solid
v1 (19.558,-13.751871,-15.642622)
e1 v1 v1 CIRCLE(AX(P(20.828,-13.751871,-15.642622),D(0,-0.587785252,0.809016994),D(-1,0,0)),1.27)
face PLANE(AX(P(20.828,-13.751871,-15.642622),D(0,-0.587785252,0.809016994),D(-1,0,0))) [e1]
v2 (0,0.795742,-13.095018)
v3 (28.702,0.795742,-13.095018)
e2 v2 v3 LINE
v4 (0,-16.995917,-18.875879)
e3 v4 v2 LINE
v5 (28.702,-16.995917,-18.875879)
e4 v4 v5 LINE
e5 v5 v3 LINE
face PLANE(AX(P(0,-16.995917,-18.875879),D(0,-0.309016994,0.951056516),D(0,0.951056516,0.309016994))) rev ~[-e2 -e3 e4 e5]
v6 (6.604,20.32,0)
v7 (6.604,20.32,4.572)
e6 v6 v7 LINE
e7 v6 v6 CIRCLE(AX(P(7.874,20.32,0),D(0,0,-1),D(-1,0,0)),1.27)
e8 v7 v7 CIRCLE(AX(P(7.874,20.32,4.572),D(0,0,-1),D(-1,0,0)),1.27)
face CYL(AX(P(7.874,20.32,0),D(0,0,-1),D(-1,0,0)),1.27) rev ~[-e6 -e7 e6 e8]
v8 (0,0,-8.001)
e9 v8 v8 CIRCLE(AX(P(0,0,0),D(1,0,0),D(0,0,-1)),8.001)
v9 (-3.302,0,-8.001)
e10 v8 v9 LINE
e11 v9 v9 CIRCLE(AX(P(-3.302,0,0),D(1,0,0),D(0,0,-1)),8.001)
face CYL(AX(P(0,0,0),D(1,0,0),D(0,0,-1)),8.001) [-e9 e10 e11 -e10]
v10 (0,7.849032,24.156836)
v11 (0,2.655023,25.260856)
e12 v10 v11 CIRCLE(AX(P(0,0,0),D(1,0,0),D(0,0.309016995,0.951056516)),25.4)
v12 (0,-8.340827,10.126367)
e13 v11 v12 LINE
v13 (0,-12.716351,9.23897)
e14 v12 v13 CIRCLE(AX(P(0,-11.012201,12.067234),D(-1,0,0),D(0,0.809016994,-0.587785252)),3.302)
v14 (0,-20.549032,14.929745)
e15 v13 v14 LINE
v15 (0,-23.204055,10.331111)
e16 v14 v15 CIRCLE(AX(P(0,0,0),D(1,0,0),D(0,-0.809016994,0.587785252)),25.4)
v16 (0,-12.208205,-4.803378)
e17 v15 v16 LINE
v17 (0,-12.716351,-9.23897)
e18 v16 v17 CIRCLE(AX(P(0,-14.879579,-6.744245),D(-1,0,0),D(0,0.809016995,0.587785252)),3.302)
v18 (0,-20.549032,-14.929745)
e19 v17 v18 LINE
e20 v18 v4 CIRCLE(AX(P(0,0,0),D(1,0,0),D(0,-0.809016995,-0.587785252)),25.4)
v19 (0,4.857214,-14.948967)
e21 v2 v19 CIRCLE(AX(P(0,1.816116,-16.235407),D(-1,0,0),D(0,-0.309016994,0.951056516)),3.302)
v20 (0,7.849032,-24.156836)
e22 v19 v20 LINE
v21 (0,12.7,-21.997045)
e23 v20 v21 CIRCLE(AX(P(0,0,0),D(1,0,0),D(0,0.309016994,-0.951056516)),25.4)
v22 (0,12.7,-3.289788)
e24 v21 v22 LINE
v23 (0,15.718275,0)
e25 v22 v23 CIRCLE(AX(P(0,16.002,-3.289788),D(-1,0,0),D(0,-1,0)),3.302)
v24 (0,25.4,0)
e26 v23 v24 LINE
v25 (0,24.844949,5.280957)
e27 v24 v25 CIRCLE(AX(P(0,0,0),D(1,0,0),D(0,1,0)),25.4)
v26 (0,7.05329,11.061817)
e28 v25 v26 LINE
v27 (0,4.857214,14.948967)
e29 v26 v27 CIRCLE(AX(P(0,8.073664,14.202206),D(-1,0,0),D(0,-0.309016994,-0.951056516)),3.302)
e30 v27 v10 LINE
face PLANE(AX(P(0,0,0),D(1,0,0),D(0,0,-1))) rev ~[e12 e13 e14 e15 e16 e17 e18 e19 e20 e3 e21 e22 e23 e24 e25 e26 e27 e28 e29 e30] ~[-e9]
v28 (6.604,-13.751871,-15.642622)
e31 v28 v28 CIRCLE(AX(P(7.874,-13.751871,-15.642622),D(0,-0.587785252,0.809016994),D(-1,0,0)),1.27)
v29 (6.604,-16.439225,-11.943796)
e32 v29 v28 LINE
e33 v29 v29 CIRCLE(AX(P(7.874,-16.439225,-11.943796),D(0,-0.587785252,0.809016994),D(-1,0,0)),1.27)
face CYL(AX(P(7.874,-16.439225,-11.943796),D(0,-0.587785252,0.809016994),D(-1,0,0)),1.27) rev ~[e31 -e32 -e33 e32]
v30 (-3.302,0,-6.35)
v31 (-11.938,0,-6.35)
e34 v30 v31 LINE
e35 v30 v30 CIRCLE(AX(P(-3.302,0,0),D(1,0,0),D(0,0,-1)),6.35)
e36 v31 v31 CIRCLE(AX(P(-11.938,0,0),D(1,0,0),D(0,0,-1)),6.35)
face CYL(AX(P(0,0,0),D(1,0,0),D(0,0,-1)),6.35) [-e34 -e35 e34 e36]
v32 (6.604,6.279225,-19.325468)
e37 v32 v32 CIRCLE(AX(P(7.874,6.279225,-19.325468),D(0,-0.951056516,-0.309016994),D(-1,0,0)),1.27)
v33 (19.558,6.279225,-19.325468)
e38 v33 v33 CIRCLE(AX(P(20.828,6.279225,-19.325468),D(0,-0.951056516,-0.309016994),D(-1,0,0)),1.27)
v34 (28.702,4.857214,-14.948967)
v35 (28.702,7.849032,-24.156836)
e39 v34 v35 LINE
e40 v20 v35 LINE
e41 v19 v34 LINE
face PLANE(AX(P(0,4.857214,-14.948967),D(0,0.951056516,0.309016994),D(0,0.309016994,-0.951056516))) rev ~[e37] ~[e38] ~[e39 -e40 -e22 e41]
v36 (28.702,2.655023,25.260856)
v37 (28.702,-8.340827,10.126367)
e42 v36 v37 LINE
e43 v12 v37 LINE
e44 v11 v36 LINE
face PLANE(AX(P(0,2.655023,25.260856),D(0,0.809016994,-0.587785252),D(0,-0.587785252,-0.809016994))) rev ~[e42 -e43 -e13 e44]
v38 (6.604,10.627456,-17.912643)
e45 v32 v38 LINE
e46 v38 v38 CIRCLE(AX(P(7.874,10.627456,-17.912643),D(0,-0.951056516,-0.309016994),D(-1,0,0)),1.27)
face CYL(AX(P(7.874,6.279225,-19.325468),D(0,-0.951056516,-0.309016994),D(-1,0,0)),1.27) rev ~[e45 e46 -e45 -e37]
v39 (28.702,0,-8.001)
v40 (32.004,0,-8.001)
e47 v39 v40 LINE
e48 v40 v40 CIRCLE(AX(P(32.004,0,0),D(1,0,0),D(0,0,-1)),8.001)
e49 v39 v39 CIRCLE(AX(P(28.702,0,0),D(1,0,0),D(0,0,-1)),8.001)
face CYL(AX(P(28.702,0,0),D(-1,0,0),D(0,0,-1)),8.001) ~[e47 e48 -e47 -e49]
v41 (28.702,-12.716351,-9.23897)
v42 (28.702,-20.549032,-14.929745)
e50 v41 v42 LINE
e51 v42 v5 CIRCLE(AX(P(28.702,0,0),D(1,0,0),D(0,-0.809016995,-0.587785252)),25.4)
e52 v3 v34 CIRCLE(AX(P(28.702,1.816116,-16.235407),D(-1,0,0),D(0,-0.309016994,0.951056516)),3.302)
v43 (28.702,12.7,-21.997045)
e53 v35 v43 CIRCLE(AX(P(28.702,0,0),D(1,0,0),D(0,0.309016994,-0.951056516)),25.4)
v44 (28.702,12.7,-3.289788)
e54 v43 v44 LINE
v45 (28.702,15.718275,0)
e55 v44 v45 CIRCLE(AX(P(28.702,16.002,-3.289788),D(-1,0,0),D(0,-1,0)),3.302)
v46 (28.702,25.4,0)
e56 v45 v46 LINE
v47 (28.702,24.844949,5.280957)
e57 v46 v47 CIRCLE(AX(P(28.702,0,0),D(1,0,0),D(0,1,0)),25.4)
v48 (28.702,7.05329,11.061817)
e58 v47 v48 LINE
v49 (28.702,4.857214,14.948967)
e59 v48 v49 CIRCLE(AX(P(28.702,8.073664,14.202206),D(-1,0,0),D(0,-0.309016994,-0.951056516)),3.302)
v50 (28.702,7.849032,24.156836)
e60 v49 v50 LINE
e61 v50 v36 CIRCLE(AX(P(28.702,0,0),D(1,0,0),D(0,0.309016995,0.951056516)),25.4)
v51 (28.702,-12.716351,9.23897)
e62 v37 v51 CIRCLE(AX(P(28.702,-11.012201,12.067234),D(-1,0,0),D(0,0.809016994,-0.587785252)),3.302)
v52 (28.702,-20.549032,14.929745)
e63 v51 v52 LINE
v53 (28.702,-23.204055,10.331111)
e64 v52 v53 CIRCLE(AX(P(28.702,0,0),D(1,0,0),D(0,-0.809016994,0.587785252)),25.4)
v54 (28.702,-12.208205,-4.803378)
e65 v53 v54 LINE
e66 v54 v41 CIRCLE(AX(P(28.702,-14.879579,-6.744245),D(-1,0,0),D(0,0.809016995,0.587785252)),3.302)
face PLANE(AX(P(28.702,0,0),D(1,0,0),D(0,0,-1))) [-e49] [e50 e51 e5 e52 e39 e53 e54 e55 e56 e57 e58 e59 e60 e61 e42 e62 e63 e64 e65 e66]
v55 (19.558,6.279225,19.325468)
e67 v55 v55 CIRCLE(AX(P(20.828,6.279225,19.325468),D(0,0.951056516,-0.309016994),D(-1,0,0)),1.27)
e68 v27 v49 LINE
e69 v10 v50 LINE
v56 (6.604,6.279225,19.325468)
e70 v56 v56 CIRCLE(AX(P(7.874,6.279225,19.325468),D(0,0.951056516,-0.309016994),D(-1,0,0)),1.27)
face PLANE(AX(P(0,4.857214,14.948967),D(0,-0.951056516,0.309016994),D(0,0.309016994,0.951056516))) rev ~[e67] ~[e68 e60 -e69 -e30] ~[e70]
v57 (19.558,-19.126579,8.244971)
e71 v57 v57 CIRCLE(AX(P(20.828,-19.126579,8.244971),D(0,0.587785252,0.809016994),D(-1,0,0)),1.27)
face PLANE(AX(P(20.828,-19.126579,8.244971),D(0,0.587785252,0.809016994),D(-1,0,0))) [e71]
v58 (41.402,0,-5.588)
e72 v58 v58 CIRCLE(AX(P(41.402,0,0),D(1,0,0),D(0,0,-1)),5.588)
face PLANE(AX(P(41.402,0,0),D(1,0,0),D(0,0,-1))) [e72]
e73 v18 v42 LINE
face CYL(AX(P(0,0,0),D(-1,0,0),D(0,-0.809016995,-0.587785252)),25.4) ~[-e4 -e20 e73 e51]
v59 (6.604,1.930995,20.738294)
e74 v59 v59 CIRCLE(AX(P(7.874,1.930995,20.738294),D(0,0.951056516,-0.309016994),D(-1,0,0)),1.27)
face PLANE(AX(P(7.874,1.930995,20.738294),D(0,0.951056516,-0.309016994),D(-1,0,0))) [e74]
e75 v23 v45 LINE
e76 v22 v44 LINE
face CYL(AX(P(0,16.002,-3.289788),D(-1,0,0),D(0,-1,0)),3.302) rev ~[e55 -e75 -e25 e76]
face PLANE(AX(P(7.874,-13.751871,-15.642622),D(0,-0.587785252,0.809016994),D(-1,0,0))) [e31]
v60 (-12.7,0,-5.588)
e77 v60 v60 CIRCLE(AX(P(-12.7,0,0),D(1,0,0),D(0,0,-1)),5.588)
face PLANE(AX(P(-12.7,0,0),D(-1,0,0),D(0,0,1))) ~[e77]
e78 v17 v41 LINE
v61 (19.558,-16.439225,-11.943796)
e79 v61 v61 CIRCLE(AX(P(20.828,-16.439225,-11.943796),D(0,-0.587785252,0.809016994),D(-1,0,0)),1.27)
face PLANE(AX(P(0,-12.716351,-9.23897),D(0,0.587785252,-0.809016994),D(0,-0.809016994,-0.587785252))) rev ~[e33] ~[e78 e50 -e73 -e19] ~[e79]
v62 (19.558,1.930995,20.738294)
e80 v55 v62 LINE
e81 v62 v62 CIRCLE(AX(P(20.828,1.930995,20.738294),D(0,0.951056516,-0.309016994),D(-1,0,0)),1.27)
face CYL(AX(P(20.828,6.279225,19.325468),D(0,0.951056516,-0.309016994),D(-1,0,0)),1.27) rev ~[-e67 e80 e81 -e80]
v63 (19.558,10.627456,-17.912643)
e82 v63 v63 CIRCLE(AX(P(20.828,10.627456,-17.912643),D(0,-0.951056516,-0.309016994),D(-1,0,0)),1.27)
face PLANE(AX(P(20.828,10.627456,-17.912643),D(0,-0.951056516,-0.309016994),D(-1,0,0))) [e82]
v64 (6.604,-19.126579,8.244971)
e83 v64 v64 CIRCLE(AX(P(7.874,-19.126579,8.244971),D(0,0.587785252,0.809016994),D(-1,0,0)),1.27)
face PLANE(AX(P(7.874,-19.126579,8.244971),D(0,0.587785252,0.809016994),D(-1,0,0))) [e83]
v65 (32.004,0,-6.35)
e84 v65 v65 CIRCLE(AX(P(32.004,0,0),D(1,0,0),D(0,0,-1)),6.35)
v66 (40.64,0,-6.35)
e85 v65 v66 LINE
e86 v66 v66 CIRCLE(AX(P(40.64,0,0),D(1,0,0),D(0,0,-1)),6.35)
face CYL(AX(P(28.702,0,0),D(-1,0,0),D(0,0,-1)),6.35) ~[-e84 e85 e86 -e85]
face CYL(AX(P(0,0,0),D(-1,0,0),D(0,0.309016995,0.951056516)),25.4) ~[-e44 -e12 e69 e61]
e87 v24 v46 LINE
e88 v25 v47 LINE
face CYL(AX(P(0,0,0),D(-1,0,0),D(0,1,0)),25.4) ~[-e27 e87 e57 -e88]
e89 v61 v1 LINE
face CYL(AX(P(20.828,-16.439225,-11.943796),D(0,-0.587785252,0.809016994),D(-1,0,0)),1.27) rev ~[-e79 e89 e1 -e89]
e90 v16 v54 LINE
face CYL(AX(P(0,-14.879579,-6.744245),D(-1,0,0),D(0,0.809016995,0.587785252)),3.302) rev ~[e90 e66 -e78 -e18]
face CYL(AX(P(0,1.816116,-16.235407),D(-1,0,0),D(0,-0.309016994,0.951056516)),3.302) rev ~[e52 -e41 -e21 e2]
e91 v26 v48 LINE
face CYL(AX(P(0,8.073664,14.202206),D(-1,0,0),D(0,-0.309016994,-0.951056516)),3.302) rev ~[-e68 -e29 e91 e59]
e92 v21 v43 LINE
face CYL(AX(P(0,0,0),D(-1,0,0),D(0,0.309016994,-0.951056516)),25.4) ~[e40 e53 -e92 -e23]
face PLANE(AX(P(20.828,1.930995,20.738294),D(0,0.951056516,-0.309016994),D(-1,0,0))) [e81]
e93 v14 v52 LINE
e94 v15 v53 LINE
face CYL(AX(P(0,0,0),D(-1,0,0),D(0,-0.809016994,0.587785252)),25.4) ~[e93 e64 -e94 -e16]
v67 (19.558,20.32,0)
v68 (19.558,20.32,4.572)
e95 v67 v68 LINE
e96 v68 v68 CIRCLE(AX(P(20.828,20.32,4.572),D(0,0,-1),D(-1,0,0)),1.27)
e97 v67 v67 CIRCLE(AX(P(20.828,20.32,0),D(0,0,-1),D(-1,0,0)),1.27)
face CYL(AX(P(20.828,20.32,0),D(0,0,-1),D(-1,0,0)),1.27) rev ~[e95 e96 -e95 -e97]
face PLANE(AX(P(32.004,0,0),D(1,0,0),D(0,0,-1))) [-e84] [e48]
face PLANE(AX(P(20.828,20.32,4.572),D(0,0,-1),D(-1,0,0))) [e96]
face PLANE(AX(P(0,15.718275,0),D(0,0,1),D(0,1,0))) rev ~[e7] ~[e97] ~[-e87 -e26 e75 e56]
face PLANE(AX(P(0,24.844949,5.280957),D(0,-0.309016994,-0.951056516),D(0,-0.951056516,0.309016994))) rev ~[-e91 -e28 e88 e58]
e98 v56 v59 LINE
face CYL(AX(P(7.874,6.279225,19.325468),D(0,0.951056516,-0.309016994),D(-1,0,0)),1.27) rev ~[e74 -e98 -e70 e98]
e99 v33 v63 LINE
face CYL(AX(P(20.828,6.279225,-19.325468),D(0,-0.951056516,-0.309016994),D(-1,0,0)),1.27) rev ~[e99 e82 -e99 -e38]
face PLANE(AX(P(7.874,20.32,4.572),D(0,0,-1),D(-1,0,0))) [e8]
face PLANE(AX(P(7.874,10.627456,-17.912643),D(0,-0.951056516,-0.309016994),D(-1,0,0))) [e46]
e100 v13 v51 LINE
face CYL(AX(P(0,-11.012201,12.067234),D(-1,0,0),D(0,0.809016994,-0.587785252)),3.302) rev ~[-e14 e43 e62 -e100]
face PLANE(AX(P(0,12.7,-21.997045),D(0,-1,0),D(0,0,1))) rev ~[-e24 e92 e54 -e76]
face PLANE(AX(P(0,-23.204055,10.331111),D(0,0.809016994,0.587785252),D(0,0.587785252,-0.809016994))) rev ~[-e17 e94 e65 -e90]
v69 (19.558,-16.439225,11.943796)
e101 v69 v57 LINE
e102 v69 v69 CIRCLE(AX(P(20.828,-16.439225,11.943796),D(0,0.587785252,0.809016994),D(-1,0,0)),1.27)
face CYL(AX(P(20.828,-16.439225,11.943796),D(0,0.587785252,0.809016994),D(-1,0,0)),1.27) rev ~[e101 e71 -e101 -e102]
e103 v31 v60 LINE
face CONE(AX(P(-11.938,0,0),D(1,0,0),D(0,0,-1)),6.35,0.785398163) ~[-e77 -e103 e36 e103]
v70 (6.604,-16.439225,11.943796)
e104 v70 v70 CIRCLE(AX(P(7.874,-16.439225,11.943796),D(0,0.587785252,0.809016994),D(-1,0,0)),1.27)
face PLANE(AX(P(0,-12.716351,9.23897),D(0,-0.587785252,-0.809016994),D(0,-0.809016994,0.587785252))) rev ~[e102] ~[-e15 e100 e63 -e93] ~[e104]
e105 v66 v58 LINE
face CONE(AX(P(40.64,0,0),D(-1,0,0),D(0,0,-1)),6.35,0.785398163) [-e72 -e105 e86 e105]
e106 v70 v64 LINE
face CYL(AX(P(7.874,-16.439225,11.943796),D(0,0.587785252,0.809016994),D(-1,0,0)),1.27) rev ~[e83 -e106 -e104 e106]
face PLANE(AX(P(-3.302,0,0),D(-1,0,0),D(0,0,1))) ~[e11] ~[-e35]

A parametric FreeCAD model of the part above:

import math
import FreeCAD as App
import Part
import Sketcher
from FreeCAD import Vector
Q = App.Units.Quantity


def edges_at(feature, points):
    """Names of the edges that pass closest to the given points."""
    edges = feature.Shape.Edges
    near = lambda p: min(range(len(edges)), key=lambda i: edges[i].distToShape(Part.Vertex(*p))[0])
    return sorted({f"Edge{near(p) + 1}" for p in points})

doc = App.newDocument("Part")
body = doc.addObject("PartDesign::Body", "Body")

# Sketch on YZ plane
sketch1 = body.newObject("Sketcher::SketchObject", "Sketch")
sketch1.AttachmentSupport = (doc.getObject("YZ_Plane"), [""])
sketch1.MapMode = "FlatFace"
sketch1.addGeometry([
    Part.LineSegment(Vector(15.7, 0, 0), Vector(25.4, 0, 0)),  # 0
    Part.ArcOfCircle(Part.Circle(Vector(0, 0, 0), Vector(0, 0, 1), 25.4), math.radians(0), math.radians(12)),  # 1
    Part.LineSegment(Vector(24.8, 5.3, 0), Vector(7.1, 11.1, 0)),  # 2
    Part.ArcOfCircle(Part.Circle(Vector(8.1, 14.2, 0), Vector(0, 0, 1), 3.3), math.radians(167), math.radians(252)),  # 3
    Part.LineSegment(Vector(4.9, 14.9, 0), Vector(7.8, 24.2, 0)),  # 4
    Part.ArcOfCircle(Part.Circle(Vector(0, 0, 0), Vector(0, 0, 1), 25.4), math.radians(72), math.radians(84)),  # 5
    Part.LineSegment(Vector(2.7, 25.3, 0), Vector(-8.3, 10.1, 0)),  # 6
    Part.ArcOfCircle(Part.Circle(Vector(-11, 12.1, 0), Vector(0, 0, 1), 3.3), math.radians(-121), math.radians(-36)),  # 7
    Part.LineSegment(Vector(-12.7, 9.2, 0), Vector(-20.5, 14.9, 0)),  # 8
    Part.ArcOfCircle(Part.Circle(Vector(0, 0, 0), Vector(0, 0, 1), 25.4), math.radians(144), math.radians(156)),  # 9
    Part.LineSegment(Vector(-23.2, 10.3, 0), Vector(-12.2, -4.8, 0)),  # 10
    Part.ArcOfCircle(Part.Circle(Vector(-14.9, -6.7, 0), Vector(0, 0, 1), 3.3), math.radians(-49), math.radians(36)),  # 11
    Part.LineSegment(Vector(-12.7, -9.2, 0), Vector(-20.5, -14.9, 0)),  # 12
    Part.ArcOfCircle(Part.Circle(Vector(0, 0, 0), Vector(0, 0, 1), 25.4), math.radians(-144), math.radians(-132)),  # 13
    Part.LineSegment(Vector(-17, -18.9, 0), Vector(0.8, -13.1, 0)),  # 14
    Part.ArcOfCircle(Part.Circle(Vector(1.8, -16.2, 0), Vector(0, 0, 1), 3.3), math.radians(23), math.radians(108)),  # 15
    Part.LineSegment(Vector(4.9, -14.9, 0), Vector(7.8, -24.2, 0)),  # 16
    Part.ArcOfCircle(Part.Circle(Vector(0, 0, 0), Vector(0, 0, 1), 25.4), math.radians(-72), math.radians(-60)),  # 17
    Part.LineSegment(Vector(12.7, -22, 0), Vector(12.7, -3.3, 0)),  # 18
    Part.ArcOfCircle(Part.Circle(Vector(16, -3.3, 0), Vector(0, 0, 1), 3.3), math.radians(95), math.radians(180)),  # 19
], False)
sketch1.addConstraint([
    Sketcher.Constraint("Coincident", 0, 2, 1, 1),
    Sketcher.Constraint("Coincident", 1, 2, 2, 1),
    Sketcher.Constraint("Tangent", 2, 2, 3, 2),
    Sketcher.Constraint("Coincident", 3, 1, 4, 1),
    Sketcher.Constraint("Coincident", 4, 2, 5, 1),
    Sketcher.Constraint("Coincident", 5, 2, 6, 1),
    Sketcher.Constraint("Tangent", 6, 2, 7, 2),
    Sketcher.Constraint("Coincident", 7, 1, 8, 1),
    Sketcher.Constraint("Coincident", 8, 2, 9, 1),
    Sketcher.Constraint("Coincident", 9, 2, 10, 1),
    Sketcher.Constraint("Tangent", 10, 2, 11, 2),
    Sketcher.Constraint("Coincident", 11, 1, 12, 1),
    Sketcher.Constraint("Coincident", 12, 2, 13, 1),
    Sketcher.Constraint("Coincident", 13, 2, 14, 1),
    Sketcher.Constraint("Tangent", 14, 2, 15, 2),
    Sketcher.Constraint("Coincident", 15, 1, 16, 1),
    Sketcher.Constraint("Coincident", 16, 2, 17, 1),
    Sketcher.Constraint("Coincident", 17, 2, 18, 1),
    Sketcher.Constraint("Tangent", 18, 2, 19, 2),
    Sketcher.Constraint("Coincident", 19, 1, 0, 1),
    Sketcher.Constraint("Horizontal", 0),
    Sketcher.Constraint("Vertical", 18),
    Sketcher.Constraint("Coincident", 1, 3, -1, 1),
    Sketcher.Constraint("Coincident", 5, 3, -1, 1),
    Sketcher.Constraint("Coincident", 9, 3, -1, 1),
    Sketcher.Constraint("Coincident", 13, 3, -1, 1),
    Sketcher.Constraint("Coincident", 17, 3, -1, 1),
    Sketcher.Constraint("Equal", 1, 5),
    Sketcher.Constraint("Equal", 3, 7),
    Sketcher.Constraint("Equal", 5, 9),
    Sketcher.Constraint("Equal", 7, 11),
    Sketcher.Constraint("Equal", 9, 13),
    Sketcher.Constraint("Equal", 11, 15),
    Sketcher.Constraint("Equal", 13, 17),
    Sketcher.Constraint("Equal", 15, 19),
    Sketcher.Constraint("Symmetric", 7, 1, 11, 1, -1),
    Sketcher.Constraint("Symmetric", 3, 1, 15, 1, -1),
    Sketcher.Constraint("PointOnObject", 0, 2, -1),
    Sketcher.Constraint("Perpendicular", 2, 4),
    Sketcher.Constraint("Perpendicular", 6, 8),
    Sketcher.Constraint("Perpendicular", 10, 12),
    Sketcher.Constraint("Perpendicular", 14, 16),
    Sketcher.Constraint("Vertical", 8, 2, 12, 2),
    Sketcher.Constraint("Vertical", 4, 2, 16, 2),
    Sketcher.Constraint("Equal", 2, 6),
    Sketcher.Constraint("Equal", 4, 8),
    Sketcher.Constraint("Equal", 6, 10),
    Sketcher.Constraint("Equal", 10, 14),
    Sketcher.Constraint("Radius", 1, Q("1 in")),
    Sketcher.Constraint("Radius", 3, Q("0.13 in")),
    Sketcher.Constraint("Angle", 2, Q("162 deg")),
    Sketcher.Constraint("Angle", 6, Q("-126 deg")),
    Sketcher.Constraint("DistanceX", -1, 1, 17, 2, Q("0.5 in")),
    Sketcher.Constraint("DistanceY", 3, 3, 3, 1, Q("0.0294001 in")),
    Sketcher.Constraint("DistanceX", 7, 3, -1, 1, 11.012201),
    Sketcher.Constraint("DistanceY", 7, 3, 4, 2, 12.089602),
    Sketcher.Constraint("DistanceY", 12, 2, 11, 3, 8.1855),
    Sketcher.Constraint("DistanceX", 0, 1, 0, 2, 9.681725),
])
pad1 = body.newObject("PartDesign::Pad", "Pad")
pad1.Profile = sketch1
pad1.Length = Q("1.13 in")

# Sketch on YZ plane
sketch2 = body.newObject("Sketcher::SketchObject", "Sketch001")
sketch2.AttachmentSupport = (doc.getObject("YZ_Plane"), [""])
sketch2.MapMode = "FlatFace"
sketch2.AttachmentOffset = App.Placement(Vector(0, 0, 1.13 * 25.4), App.Rotation())
sketch2.addGeometry([
    Part.Circle(Vector(0, 0, 0), Vector(0, 0, 1), 8),
    Part.Circle(Vector(0, 0, 0), Vector(0, 0, 1), 6),
], False)
sketch2.addConstraint([
    Sketcher.Constraint("Coincident", 0, 3, -1, 1),
    Sketcher.Constraint("Coincident", 1, 3, -1, 1),
    Sketcher.Constraint("Diameter", 1, Q("0.5 in")),
    Sketcher.Constraint("Diameter", 0, Q("0.63 in")),
])
pad2 = body.newObject("PartDesign::Pad", "Pad001")
pad2.Profile = sketch2
pad2.Length = Q("0.13 in")

# Sketch on YZ plane
sketch3 = body.newObject("Sketcher::SketchObject", "Sketch002")
sketch3.AttachmentSupport = (doc.getObject("YZ_Plane"), [""])
sketch3.MapMode = "FlatFace"
sketch3.AttachmentOffset = App.Placement(Vector(0, 0, 1.13 * 25.4), App.Rotation())
sketch3.addGeometry(Part.Circle(Vector(0, 0, 0), Vector(0, 0, 1), 6), False)
sketch3.addConstraint([
    Sketcher.Constraint("Coincident", 0, 3, -1, 1),
    Sketcher.Constraint("Diameter", 0, Q("0.5 in")),
])
pad3 = body.newObject("PartDesign::Pad", "Pad002")
pad3.Profile = sketch3
pad3.Length = Q("0.5 in")
doc.recompute()

chamfer = body.newObject("PartDesign::Chamfer", "Chamfer")
chamfer.Base = (pad3, edges_at(pad3, [(41.402, 0, 6.35)]))
chamfer.Size = Q("0.03 in")
doc.recompute()

datumplane = body.newObject("PartDesign::Plane", "DatumPlane")
datumplane.AttachmentSupport = (doc.getObject("YZ_Plane"), [""])
datumplane.MapMode = "FlatFace"
datumplane.AttachmentOffset = App.Placement(Vector(0, 0, 0.565 * 25.4), App.Rotation())
mirrored = body.newObject("PartDesign::Mirrored", "Mirrored")
mirrored.Originals = [pad2, pad3]
mirrored.MirrorPlane = (datumplane, [""])
body.Tip = mirrored
doc.recompute()

chamfer2 = body.newObject("PartDesign::Chamfer", "Chamfer001")
chamfer2.Base = (mirrored, edges_at(mirrored, [(-12.7, 0, 6.35)]))
chamfer2.Size = Q("0.03 in")

# Sketch on XY plane
sketch4 = body.newObject("Sketcher::SketchObject", "Sketch003")
sketch4.AttachmentSupport = (doc.getObject("XY_Plane"), [""])
sketch4.MapMode = "FlatFace"
sketch4.addGeometry([
    Part.Circle(Vector(20.8, 20.3, 0), Vector(0, 0, 1), 1.3),
    Part.Circle(Vector(7.9, 20.3, 0), Vector(0, 0, 1), 1.3),
], False)
sketch4.addConstraint([
    Sketcher.Constraint("Equal", 0, 1),
    Sketcher.Constraint("Horizontal", 0, 3, 1, 3),
    Sketcher.Constraint("Diameter", 0, Q("0.1 in")),
    Sketcher.Constraint("DistanceY", -1, 1, 0, 3, Q("0.8 in")),
    Sketcher.Constraint("DistanceX", -1, 1, 0, 3, Q("0.82 in")),
    Sketcher.Constraint("DistanceX", -1, 1, 1, 3, Q("0.31 in")),
])
pocket1 = body.newObject("PartDesign::Pocket", "Pocket")
pocket1.Profile = sketch4
pocket1.Length = Q("0.18 in")
pocket1.Reversed = True
doc.recompute()

polarpattern = body.newObject("PartDesign::PolarPattern", "PolarPattern")
polarpattern.Originals = [pocket1]
polarpattern.Axis = (doc.getObject("X_Axis"), [""])
polarpattern.Angle = 360
polarpattern.Occurrences = 5
body.Tip = polarpattern

doc.recompute()
